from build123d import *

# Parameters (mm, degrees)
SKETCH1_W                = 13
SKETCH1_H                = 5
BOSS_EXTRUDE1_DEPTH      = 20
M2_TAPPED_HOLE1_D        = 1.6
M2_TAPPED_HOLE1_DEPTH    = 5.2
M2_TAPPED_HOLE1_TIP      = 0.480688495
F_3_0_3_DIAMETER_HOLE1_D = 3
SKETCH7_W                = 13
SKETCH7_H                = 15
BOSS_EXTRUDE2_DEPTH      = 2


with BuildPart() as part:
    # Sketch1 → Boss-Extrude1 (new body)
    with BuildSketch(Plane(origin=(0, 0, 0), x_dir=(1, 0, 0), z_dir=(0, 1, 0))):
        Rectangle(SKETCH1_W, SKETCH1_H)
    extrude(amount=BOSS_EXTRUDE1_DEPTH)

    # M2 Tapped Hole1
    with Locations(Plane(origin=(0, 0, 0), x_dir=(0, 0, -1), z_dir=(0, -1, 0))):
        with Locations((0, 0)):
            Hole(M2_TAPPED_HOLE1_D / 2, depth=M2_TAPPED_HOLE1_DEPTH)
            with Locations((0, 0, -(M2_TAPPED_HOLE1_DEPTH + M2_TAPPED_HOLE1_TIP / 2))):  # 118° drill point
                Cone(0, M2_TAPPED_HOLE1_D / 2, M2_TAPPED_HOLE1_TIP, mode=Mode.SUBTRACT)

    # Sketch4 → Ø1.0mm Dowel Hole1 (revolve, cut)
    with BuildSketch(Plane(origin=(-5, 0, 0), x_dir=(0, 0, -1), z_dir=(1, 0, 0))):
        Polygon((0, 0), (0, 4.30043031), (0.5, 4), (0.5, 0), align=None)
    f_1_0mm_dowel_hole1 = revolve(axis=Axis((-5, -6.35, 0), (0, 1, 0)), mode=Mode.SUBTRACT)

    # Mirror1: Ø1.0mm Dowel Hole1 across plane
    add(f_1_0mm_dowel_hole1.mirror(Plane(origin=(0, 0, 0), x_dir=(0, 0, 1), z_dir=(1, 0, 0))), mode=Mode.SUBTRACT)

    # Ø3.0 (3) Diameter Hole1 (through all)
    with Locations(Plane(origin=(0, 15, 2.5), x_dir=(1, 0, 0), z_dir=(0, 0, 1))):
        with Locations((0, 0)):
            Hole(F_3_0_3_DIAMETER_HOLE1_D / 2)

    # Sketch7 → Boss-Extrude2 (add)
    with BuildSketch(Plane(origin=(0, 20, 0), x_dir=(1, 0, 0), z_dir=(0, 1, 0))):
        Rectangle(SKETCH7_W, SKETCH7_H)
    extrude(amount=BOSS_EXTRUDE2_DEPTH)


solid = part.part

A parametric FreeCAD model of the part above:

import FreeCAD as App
import Part
import Sketcher

V = App.Vector
Q = App.Units.Quantity

doc = App.newDocument("Part")
body = doc.addObject("PartDesign::Body", "Body")

sketch1 = doc.addObject("Sketcher::SketchObject", "Sketch")
body.addObject(sketch1)
sketch1.AttachmentSupport = (doc.XZ_Plane, [""])
sketch1.MapMode = "FlatFace"
sketch1.addGeometry([
    Part.LineSegment(V(-6.5, -2.5, 0), V(-6.5, 2.5, 0)),
    Part.LineSegment(V(-6.5, 2.5, 0), V(6.5, 2.5, 0)),
    Part.LineSegment(V(6.5, 2.5, 0), V(6.5, -2.5, 0)),
    Part.LineSegment(V(6.5, -2.5, 0), V(-6.5, -2.5, 0)),
], False)
sketch1.addConstraint([
    Sketcher.Constraint("Coincident", 0, 2, 1, 1),
    Sketcher.Constraint("Coincident", 1, 2, 2, 1),
    Sketcher.Constraint("Coincident", 2, 2, 3, 1),
    Sketcher.Constraint("Coincident", 3, 2, 0, 1),
    Sketcher.Constraint("Vertical", 0),
    Sketcher.Constraint("Horizontal", 1),
    Sketcher.Constraint("Vertical", 2),
    Sketcher.Constraint("Horizontal", 3),
    Sketcher.Constraint("Symmetric", 0, 2, 2, 2, -1, 1),
    Sketcher.Constraint("DistanceX", 1, 1, 1, 2, Q("13 mm")),
    Sketcher.Constraint("DistanceY", 0, 1, 0, 2, Q("5 mm")),
])
pad1 = doc.addObject("PartDesign::Pad", "Pad")
body.addObject(pad1)
pad1.Profile = sketch1
pad1.Length = 20
pad1.Reversed = True

sketch2 = doc.addObject("Sketcher::SketchObject", "Sketch001")
body.addObject(sketch2)
sketch2.AttachmentSupport = (doc.XZ_Plane, [""])
sketch2.MapMode = "FlatFace"
sketch2.addGeometry(Part.Circle(V(0, 0, 0), V(0, 0, 1), 0.8), False)
sketch2.addConstraint([
    Sketcher.Constraint("Coincident", 0, 3, -1, 1),
    Sketcher.Constraint("Diameter", 0, Q("1.6 mm")),
])
doc.recompute()
hole = doc.addObject("PartDesign::Hole", "Hole")
body.addObject(hole)
hole.Profile = sketch2
hole.ThreadType = "None"
hole.Diameter = 1.6
hole.DepthType = "Dimension"
hole.Depth = 5.2
hole.DrillPoint = "Angled"
hole.DrillPointAngle = 118

sketch3 = doc.addObject("Sketcher::SketchObject", "Sketch002")
body.addObject(sketch3)
sketch3.AttachmentSupport = (doc.YZ_Plane, [""])
sketch3.MapMode = "FlatFace"
sketch3.AttachmentOffset = App.Placement(V(0, 0, -5), App.Rotation())
sketch3.addGeometry([
    Part.LineSegment(V(4.30043, 0, 0), V(0, 0, 0)),
    Part.LineSegment(V(0, 0, 0), V(0, -0.5, 0)),
    Part.LineSegment(V(0, -0.5, 0), V(4, -0.5, 0)),
    Part.LineSegment(V(4, -0.5, 0), V(4.30043, 0, 0)),
], False)
sketch3.addConstraint([
    Sketcher.Constraint("Coincident", 0, 2, 1, 1),
    Sketcher.Constraint("Coincident", 1, 2, 2, 1),
    Sketcher.Constraint("Coincident", 2, 2, 3, 1),
    Sketcher.Constraint("Coincident", 3, 2, 0, 1),
    Sketcher.Constraint("Horizontal", 0),
    Sketcher.Constraint("Vertical", 1),
    Sketcher.Constraint("Horizontal", 2),
    Sketcher.Constraint("Coincident", 0, 2, -1, 1),
    Sketcher.Constraint("DistanceX", 2, 1, 2, 2, Q("4 mm")),
    Sketcher.Constraint("Angle", 3, Q("59 deg")),
    Sketcher.Constraint("DistanceY", 1, 2, 1, 1, Q("0.5 mm")),
])
groove = doc.addObject("PartDesign::Groove", "Groove")
body.addObject(groove)
groove.Profile = sketch3
groove.ReferenceAxis = (sketch3, ["H_Axis"])
groove.Angle = 360
doc.recompute()

mirrored = doc.addObject("PartDesign::Mirrored", "Mirrored")
body.addObject(mirrored)
mirrored.Originals = [groove]
mirrored.MirrorPlane = (doc.YZ_Plane, [""])
body.Tip = mirrored

sketch4 = doc.addObject("Sketcher::SketchObject", "Sketch003")
body.addObject(sketch4)
sketch4.AttachmentSupport = (doc.XY_Plane, [""])
sketch4.MapMode = "FlatFace"
sketch4.AttachmentOffset = App.Placement(V(0, 0, 2.5), App.Rotation())
sketch4.addGeometry(Part.Circle(V(0, 15, 0), V(0, 0, 1), 1.5), False)
sketch4.addConstraint([
    Sketcher.Constraint("PointOnObject", 0, 3, -2),
    Sketcher.Constraint("Diameter", 0, Q("3 mm")),
    Sketcher.Constraint("DistanceY", -1, 1, 0, 3, Q("15 mm")),
])
doc.recompute()
hole2 = doc.addObject("PartDesign::Hole", "Hole001")
body.addObject(hole2)
hole2.Profile = sketch4
hole2.ThreadType = "None"
hole2.Diameter = 3
hole2.DepthType = "ThroughAll"

sketch5 = doc.addObject("Sketcher::SketchObject", "Sketch004")
body.addObject(sketch5)
sketch5.AttachmentSupport = (doc.XZ_Plane, [""])
sketch5.MapMode = "FlatFace"
sketch5.AttachmentOffset = App.Placement(V(0, 0, -20), App.Rotation())
sketch5.addGeometry([
    Part.LineSegment(V(-6.5, -7.5, 0), V(-6.5, 7.5, 0)),
    Part.LineSegment(V(-6.5, 7.5, 0), V(6.5, 7.5, 0)),
    Part.LineSegment(V(6.5, 7.5, 0), V(6.5, -7.5, 0)),
    Part.LineSegment(V(6.5, -7.5, 0), V(-6.5, -7.5, 0)),
], False)
sketch5.addConstraint([
    Sketcher.Constraint("Coincident", 0, 2, 1, 1),
    Sketcher.Constraint("Coincident", 1, 2, 2, 1),
    Sketcher.Constraint("Coincident", 2, 2, 3, 1),
    Sketcher.Constraint("Coincident", 3, 2, 0, 1),
    Sketcher.Constraint("Vertical", 0),
    Sketcher.Constraint("Horizontal", 1),
    Sketcher.Constraint("Vertical", 2),
    Sketcher.Constraint("Horizontal", 3),
    Sketcher.Constraint("Symmetric", 0, 2, 2, 2, -1, 1),
    Sketcher.Constraint("DistanceX", 1, 1, 1, 2, Q("13 mm")),
    Sketcher.Constraint("DistanceY", 0, 1, 0, 2, Q("15 mm")),
])
pad2 = doc.addObject("PartDesign::Pad", "Pad001")
body.addObject(pad2)
pad2.Profile = sketch5
pad2.Length = 2
pad2.Reversed = True

doc.recompute()
